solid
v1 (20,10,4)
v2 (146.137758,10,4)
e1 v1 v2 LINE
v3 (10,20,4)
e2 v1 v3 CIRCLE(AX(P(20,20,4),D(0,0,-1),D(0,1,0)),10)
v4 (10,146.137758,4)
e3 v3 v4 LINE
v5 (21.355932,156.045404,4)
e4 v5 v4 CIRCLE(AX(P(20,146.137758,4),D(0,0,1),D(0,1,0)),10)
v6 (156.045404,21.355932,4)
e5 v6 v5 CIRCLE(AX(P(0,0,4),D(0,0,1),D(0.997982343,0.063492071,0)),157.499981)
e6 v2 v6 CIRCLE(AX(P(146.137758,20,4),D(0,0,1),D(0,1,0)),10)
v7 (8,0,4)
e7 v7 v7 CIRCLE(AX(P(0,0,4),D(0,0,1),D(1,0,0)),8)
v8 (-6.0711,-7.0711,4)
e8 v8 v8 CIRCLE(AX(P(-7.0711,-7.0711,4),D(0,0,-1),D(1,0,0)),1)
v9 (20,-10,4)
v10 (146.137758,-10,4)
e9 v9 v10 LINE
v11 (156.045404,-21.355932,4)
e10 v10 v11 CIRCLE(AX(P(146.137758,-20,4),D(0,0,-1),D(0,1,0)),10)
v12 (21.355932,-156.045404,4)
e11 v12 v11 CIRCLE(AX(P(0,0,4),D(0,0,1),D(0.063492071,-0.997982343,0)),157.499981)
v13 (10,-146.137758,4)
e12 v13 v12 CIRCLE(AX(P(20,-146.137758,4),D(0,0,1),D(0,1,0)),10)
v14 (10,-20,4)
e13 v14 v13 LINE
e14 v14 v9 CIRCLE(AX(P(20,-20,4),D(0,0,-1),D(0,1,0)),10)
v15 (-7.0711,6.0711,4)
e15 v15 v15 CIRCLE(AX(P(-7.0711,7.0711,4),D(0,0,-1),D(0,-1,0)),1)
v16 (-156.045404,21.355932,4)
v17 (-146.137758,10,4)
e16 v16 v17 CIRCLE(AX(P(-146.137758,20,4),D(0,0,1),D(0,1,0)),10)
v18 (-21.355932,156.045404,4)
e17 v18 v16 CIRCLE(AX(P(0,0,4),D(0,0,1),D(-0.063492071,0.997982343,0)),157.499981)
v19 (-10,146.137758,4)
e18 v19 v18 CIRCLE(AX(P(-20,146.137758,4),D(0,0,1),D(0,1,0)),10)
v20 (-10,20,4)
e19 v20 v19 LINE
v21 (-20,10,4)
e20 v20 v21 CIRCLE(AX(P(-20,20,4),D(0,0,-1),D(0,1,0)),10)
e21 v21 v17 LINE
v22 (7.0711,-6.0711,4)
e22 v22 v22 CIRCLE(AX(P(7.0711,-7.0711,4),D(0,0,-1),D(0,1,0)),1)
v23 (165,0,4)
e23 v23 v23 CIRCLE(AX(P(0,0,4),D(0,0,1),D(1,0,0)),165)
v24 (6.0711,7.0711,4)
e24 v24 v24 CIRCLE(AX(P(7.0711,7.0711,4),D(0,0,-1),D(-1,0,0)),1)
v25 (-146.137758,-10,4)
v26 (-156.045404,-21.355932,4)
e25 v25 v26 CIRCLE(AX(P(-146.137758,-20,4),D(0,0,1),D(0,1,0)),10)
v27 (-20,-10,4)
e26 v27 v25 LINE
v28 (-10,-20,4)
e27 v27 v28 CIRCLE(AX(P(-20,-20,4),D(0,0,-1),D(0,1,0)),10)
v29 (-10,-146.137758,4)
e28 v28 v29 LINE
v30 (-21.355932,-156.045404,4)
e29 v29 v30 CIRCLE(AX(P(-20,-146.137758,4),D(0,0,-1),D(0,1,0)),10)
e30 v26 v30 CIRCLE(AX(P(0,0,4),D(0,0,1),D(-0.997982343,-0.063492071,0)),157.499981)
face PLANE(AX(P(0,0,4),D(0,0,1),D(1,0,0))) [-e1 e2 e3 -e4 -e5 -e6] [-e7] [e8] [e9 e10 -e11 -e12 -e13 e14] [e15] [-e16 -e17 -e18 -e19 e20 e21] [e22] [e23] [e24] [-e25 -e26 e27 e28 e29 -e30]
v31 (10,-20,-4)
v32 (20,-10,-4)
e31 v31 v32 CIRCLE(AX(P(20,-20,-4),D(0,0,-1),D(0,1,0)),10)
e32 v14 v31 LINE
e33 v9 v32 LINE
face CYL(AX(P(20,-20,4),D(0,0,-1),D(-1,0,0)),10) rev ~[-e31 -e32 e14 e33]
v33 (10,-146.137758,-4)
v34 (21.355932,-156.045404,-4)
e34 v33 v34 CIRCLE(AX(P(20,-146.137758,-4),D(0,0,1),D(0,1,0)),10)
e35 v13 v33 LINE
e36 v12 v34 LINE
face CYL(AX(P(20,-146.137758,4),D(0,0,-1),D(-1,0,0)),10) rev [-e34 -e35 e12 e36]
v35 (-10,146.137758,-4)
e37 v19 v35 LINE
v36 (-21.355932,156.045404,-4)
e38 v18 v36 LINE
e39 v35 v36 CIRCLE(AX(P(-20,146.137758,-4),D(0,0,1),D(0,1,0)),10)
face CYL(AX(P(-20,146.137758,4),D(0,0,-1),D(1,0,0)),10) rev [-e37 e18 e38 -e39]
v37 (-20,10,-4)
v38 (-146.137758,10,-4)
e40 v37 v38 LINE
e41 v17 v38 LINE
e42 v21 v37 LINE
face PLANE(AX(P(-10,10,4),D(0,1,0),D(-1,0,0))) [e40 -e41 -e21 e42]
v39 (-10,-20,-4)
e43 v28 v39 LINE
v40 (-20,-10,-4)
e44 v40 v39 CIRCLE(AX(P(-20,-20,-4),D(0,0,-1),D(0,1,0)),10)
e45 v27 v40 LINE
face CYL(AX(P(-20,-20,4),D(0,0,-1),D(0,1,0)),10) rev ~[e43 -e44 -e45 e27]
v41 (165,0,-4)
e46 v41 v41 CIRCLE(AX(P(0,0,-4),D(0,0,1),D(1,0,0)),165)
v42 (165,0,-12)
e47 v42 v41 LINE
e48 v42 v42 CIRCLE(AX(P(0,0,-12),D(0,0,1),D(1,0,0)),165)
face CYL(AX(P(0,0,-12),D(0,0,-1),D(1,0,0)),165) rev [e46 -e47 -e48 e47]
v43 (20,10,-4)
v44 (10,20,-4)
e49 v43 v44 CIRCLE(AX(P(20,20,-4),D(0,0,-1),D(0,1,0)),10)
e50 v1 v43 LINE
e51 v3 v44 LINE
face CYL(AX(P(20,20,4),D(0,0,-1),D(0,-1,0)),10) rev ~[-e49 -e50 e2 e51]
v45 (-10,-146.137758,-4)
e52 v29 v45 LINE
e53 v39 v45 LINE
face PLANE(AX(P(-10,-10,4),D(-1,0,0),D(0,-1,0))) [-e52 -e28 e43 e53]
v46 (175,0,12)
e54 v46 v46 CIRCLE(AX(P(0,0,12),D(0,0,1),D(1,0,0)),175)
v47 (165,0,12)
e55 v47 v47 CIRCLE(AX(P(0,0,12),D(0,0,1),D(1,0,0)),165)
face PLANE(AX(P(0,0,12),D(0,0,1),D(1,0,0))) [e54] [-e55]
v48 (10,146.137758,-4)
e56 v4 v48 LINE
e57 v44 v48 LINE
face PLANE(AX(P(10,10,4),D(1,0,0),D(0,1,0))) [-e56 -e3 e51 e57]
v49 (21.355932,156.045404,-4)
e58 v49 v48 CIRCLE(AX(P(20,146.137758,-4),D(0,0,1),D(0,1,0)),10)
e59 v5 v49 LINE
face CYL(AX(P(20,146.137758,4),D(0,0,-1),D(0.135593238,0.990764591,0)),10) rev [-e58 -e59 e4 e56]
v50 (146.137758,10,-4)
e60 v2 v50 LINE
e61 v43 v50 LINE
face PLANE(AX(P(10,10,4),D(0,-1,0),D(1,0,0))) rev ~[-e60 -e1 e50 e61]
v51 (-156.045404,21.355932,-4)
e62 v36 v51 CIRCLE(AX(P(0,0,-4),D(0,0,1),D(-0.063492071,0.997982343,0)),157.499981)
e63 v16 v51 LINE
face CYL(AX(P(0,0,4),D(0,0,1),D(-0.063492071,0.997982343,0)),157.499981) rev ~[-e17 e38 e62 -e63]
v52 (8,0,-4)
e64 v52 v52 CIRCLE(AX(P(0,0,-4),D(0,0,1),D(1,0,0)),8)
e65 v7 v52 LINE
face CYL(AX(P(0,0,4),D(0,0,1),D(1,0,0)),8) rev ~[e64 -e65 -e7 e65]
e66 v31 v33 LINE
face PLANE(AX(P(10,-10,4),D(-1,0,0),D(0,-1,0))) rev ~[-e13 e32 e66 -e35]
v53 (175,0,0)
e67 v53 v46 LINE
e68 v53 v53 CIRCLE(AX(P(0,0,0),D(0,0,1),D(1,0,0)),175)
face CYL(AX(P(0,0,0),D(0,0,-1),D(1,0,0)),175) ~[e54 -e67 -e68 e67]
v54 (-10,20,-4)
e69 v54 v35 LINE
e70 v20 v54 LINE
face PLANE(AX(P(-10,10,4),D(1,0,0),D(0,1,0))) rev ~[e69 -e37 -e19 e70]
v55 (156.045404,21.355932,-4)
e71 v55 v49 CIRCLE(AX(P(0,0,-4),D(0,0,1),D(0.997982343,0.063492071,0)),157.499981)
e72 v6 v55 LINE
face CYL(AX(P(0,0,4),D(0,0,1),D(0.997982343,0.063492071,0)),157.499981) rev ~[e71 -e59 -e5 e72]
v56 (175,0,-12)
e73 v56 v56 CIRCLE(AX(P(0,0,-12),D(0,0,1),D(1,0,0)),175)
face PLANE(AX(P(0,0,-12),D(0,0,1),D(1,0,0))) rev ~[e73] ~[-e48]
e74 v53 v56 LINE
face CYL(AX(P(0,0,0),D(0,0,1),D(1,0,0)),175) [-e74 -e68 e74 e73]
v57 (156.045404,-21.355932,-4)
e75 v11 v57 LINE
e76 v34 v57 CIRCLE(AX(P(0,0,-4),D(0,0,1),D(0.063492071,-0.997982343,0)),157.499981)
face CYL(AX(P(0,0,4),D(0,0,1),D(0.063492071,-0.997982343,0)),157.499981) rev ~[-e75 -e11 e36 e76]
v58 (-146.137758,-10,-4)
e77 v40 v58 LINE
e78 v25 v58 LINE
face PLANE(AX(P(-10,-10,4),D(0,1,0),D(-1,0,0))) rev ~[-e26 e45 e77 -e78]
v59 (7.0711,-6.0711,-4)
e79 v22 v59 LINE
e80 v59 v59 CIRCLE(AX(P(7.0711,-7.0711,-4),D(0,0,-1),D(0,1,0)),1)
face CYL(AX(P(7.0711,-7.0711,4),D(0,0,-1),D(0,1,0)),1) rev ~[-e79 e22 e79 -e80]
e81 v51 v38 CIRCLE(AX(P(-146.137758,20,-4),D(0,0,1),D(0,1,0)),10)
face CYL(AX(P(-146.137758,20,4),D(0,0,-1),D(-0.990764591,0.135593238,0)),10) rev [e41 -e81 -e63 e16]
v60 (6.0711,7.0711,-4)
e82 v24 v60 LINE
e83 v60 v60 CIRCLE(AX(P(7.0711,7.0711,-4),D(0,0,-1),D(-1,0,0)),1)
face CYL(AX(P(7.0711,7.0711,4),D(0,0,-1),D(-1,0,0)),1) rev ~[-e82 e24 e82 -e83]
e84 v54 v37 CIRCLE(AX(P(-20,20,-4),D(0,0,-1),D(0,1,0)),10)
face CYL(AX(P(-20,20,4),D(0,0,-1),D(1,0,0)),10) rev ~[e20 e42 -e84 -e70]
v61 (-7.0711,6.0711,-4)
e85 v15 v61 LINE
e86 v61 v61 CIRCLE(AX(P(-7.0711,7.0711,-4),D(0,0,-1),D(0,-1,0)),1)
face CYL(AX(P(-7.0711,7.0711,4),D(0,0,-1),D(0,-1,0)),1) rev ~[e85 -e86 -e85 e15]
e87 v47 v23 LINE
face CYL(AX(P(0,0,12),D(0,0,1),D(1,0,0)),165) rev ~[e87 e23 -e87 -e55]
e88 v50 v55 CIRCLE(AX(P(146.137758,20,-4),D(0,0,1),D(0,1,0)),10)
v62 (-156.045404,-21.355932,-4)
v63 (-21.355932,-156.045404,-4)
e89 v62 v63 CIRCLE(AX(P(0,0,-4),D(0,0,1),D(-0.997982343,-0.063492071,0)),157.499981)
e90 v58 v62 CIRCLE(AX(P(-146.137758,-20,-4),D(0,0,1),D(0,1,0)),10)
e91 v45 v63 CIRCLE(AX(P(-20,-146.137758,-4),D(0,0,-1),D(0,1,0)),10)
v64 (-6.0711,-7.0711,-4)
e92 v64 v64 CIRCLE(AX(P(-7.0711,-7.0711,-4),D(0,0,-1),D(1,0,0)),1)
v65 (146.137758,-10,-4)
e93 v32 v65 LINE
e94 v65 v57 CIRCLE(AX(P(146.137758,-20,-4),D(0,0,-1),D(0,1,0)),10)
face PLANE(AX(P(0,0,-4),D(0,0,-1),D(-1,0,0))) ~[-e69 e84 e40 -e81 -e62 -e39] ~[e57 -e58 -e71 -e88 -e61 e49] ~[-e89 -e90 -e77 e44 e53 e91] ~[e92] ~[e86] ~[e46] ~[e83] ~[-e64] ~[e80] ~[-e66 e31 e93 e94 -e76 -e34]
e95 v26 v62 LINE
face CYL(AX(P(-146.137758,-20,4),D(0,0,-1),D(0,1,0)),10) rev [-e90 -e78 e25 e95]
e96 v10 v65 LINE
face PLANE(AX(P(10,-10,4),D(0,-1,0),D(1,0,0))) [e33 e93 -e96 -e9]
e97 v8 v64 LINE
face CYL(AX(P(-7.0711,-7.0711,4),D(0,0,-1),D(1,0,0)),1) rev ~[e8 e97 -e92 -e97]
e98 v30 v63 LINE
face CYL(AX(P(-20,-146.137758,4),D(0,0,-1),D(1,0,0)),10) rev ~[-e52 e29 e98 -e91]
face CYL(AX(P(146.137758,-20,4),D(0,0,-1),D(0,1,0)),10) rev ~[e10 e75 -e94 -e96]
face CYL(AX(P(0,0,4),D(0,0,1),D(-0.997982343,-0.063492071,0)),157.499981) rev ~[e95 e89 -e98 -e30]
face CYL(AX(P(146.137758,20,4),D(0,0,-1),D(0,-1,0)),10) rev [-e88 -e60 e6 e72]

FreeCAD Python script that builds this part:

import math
import FreeCAD as App
import Part
import Sketcher


def edges_at(feature, points):
    """Names of the edges that pass closest to the given points."""
    edges = feature.Shape.Edges
    near = lambda p: min(range(len(edges)), key=lambda i: edges[i].distToShape(Part.Vertex(*p))[0])
    return sorted({f"Edge{near(p) + 1}" for p in points})

doc = App.newDocument("Part")
body = doc.addObject("PartDesign::Body", "Body")

sketch1 = doc.addObject("Sketcher::SketchObject", "Sketch")
body.addObject(sketch1)
sketch1.AttachmentSupport = (doc.XY_Plane, [""])
sketch1.MapMode = "FlatFace"
sketch1.addGeometry(Part.Circle(App.Vector(0, 0, 0), App.Vector(0, 0, 1), 175), False)
sketch1.addConstraint(Sketcher.Constraint("Coincident", 0, 3, -1, 1))
sketch1.addConstraint(Sketcher.Constraint("Diameter", 0, 350.0))
pad1 = doc.addObject("PartDesign::Pad", "Pad")
body.addObject(pad1)
pad1.Profile = sketch1
pad1.Length = 24
pad1.Midplane = True

sketch2 = doc.addObject("Sketcher::SketchObject", "Sketch001")
body.addObject(sketch2)
sketch2.AttachmentSupport = (doc.XY_Plane, [""])
sketch2.MapMode = "FlatFace"
sketch2.AttachmentOffset = App.Placement(App.Vector(0, 0, 12), App.Rotation())
sketch2.addGeometry(Part.Circle(App.Vector(0, 0, 0), App.Vector(0, 0, 1), 165), False)
sketch2.addConstraint(Sketcher.Constraint("Coincident", 0, 3, -1, 1))
sketch2.addConstraint(Sketcher.Constraint("Diameter", 0, 330.0))
pocket1 = doc.addObject("PartDesign::Pocket", "Pocket")
body.addObject(pocket1)
pocket1.Profile = sketch2
pocket1.Length = 8
doc.recompute()

mirrored = doc.addObject("PartDesign::Mirrored", "Mirrored")
body.addObject(mirrored)
mirrored.Originals = [pocket1]
mirrored.MirrorPlane = (doc.XY_Plane, [""])
body.Tip = mirrored

sketch3 = doc.addObject("Sketcher::SketchObject", "Sketch002")
body.addObject(sketch3)
sketch3.AttachmentSupport = (doc.XY_Plane, [""])
sketch3.MapMode = "FlatFace"
sketch3.AttachmentOffset = App.Placement(App.Vector(0, 0, 4), App.Rotation())
sketch3.addGeometry(Part.LineSegment(App.Vector(-10, -157.1822, 0), App.Vector(-10, -10, 0)), False)
sketch3.addGeometry(Part.LineSegment(App.Vector(-10, -10, 0), App.Vector(-157.1822, -10, 0)), False)
sketch3.addGeometry(Part.ArcOfCircle(Part.Circle(App.Vector(0, 0, 0), App.Vector(0, 0, 1), 157.499981), math.radians(-176.359724), math.radians(-93.640276)), False)
sketch3.addGeometry(Part.LineSegment(App.Vector(157.1822, -10, 0), App.Vector(10, -10, 0)), False)
sketch3.addGeometry(Part.LineSegment(App.Vector(10, -10, 0), App.Vector(10, -157.1822, 0)), False)
sketch3.addGeometry(Part.ArcOfCircle(Part.Circle(App.Vector(0, 0, 0), App.Vector(0, 0, 1), 157.499981), math.radians(-86.359724), math.radians(-3.640276)), False)
sketch3.addConstraint(Sketcher.Constraint("Coincident", 0, 2, 1, 1))
sketch3.addConstraint(Sketcher.Constraint("Coincident", 1, 2, 2, 1))
sketch3.addConstraint(Sketcher.Constraint("Coincident", 2, 2, 0, 1))
sketch3.addConstraint(Sketcher.Constraint("Coincident", 3, 2, 4, 1))
sketch3.addConstraint(Sketcher.Constraint("Coincident", 4, 2, 5, 1))
sketch3.addConstraint(Sketcher.Constraint("Coincident", 5, 2, 3, 1))
sketch3.addConstraint(Sketcher.Constraint("Vertical", 0))
sketch3.addConstraint(Sketcher.Constraint("Horizontal", 1))
sketch3.addConstraint(Sketcher.Constraint("Horizontal", 3))
sketch3.addConstraint(Sketcher.Constraint("Vertical", 4))
sketch3.addConstraint(Sketcher.Constraint("Coincident", 2, 3, -1, 1))
sketch3.addConstraint(Sketcher.Constraint("Coincident", 5, 3, -1, 1))
sketch3.addConstraint(Sketcher.Constraint("Equal", 2, 5))
sketch3.addConstraint(Sketcher.Constraint("Symmetric", 0, 2, 3, 2, -2))
sketch3.addConstraint(Sketcher.Constraint("Equal", 3, 0))
sketch3.addConstraint(Sketcher.Constraint("Radius", 2, 157.5))
sketch3.addConstraint(Sketcher.Constraint("DistanceX", 0, 2, -1, 1, 10.0))
pocket2 = doc.addObject("PartDesign::Pocket", "Pocket001")
body.addObject(pocket2)
pocket2.Profile = sketch3
pocket2.Length = 8
doc.recompute()

polarpattern = doc.addObject("PartDesign::PolarPattern", "PolarPattern")
body.addObject(polarpattern)
polarpattern.Originals = [pocket2]
polarpattern.Axis = (doc.Z_Axis, [""])
polarpattern.Angle = 360
polarpattern.Occurrences = 2
body.Tip = polarpattern
doc.recompute()

fillet = doc.addObject("PartDesign::Fillet", "Fillet")
body.addObject(fillet)
fillet.Base = (polarpattern, edges_at(polarpattern, [
    (-10, 157.182, 0),
    (-157.182, 10, 0),
    (-10, 10, 0),
    (-10, -10, 0),
    (-157.182, -10, 0),
    (-10, -157.182, 0),
    (10, -157.182, 0),
    (10, -10, 0),
    (157.182, -10, 0),
    (157.182, 10, 0),
    (10, 10, 0),
    (10, 157.182, 0),
]))
fillet.Radius = 10

sketch4 = doc.addObject("Sketcher::SketchObject", "Sketch003")
body.addObject(sketch4)
sketch4.AttachmentSupport = (doc.XY_Plane, [""])
sketch4.MapMode = "FlatFace"
sketch4.AttachmentOffset = App.Placement(App.Vector(0, 0, 4), App.Rotation())
sketch4.addGeometry(Part.Circle(App.Vector(0, 0, 0), App.Vector(0, 0, 1), 8), False)
sketch4.addConstraint(Sketcher.Constraint("Coincident", 0, 3, -1, 1))
sketch4.addConstraint(Sketcher.Constraint("Diameter", 0, 16.0))
pocket3 = doc.addObject("PartDesign::Pocket", "Pocket002")
body.addObject(pocket3)
pocket3.Profile = sketch4
pocket3.Length = 8

sketch5 = doc.addObject("Sketcher::SketchObject", "Sketch004")
body.addObject(sketch5)
sketch5.AttachmentSupport = (doc.XY_Plane, [""])
sketch5.MapMode = "FlatFace"
sketch5.AttachmentOffset = App.Placement(App.Vector(0, 0, 4), App.Rotation())
sketch5.addGeometry(Part.Circle(App.Vector(-7.0711, 7.0711, 0), App.Vector(0, 0, 1), 1), False)
sketch5.addConstraint(Sketcher.Constraint("Diameter", 0, 2.0))
sketch5.addConstraint(Sketcher.Constraint("DistanceX", 0, 3, -1, 1, 7.071))
sketch5.addConstraint(Sketcher.Constraint("DistanceY", -1, 1, 0, 3, 7.071))
doc.recompute()
hole = doc.addObject("PartDesign::Hole", "Hole")
body.addObject(hole)
hole.Profile = sketch5
hole.ThreadType = "None"
hole.Diameter = 2
hole.DepthType = "Dimension"
hole.Depth = 8
hole.DrillPoint = "Flat"
doc.recompute()

polarpattern2 = doc.addObject("PartDesign::PolarPattern", "PolarPattern001")
body.addObject(polarpattern2)
polarpattern2.Originals = [hole]
polarpattern2.Axis = (doc.Z_Axis, [""])
polarpattern2.Angle = 360
polarpattern2.Occurrences = 4
body.Tip = polarpattern2

doc.recompute()
